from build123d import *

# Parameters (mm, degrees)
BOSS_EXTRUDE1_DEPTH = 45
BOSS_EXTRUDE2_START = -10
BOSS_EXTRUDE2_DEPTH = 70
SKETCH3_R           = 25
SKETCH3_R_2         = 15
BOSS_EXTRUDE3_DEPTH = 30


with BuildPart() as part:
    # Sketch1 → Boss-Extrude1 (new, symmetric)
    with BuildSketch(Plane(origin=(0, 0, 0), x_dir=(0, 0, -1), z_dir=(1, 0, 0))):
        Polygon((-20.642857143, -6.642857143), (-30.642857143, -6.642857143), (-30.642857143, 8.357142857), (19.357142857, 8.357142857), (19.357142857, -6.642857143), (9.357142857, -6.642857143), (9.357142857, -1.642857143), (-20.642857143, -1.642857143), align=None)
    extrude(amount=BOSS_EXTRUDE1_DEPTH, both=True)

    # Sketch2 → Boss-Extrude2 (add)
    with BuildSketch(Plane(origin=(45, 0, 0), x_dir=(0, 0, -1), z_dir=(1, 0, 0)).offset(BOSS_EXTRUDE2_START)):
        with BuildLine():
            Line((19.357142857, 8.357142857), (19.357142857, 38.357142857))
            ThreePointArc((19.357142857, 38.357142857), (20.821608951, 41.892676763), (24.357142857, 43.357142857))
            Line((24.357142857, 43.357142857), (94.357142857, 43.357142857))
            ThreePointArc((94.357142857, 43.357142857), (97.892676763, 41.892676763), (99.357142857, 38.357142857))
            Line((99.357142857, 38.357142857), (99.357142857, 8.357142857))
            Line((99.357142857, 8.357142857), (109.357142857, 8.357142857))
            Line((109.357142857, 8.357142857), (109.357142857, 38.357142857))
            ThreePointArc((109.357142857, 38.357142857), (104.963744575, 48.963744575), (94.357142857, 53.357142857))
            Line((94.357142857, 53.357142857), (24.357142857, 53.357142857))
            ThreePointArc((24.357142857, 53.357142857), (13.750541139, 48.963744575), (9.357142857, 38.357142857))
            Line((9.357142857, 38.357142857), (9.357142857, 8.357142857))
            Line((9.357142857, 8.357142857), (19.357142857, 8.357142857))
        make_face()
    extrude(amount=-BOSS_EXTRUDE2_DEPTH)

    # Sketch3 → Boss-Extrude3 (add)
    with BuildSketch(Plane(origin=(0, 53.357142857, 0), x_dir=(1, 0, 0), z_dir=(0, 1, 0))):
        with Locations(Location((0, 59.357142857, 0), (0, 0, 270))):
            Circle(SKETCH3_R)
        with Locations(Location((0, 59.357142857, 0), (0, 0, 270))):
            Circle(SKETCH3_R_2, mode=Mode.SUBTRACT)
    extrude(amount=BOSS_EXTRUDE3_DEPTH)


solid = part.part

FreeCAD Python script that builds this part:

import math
import FreeCAD as App
import Part
import Sketcher


def add_polygon(sketch, points):
    """Adds a closed chain of lines whose ends are joined by coincident constraints."""
    first, n = sketch.GeometryCount, len(points)
    for a, b in zip(points, points[1:] + points[:1]):
        sketch.addGeometry(Part.LineSegment(App.Vector(*a, 0), App.Vector(*b, 0)), False)
    for i in range(n):
        sketch.addConstraint(Sketcher.Constraint("Coincident", first + i, 2, first + (i + 1) % n, 1))

doc = App.newDocument("Part")
params = doc.addObject("Spreadsheet::Sheet", "Params")
for row, (alias, value) in enumerate([
    ("sketch1_width", "5 mm"),
    ("sketch1_width2", "15 mm"),
    ("sketch1_height", "10 mm"),
    ("sketch1_height2", "30 mm"),
    ("pad1_length", "90 mm"),
    ("sketch2_radius", "5 mm"),
    ("sketch2_radius2", "15 mm"),
    ("sketch2_width", "30 mm"),
    ("sketch2_height", "70 mm"),
    ("pad2_length", "70 mm"),
    ("sketch3_diameter", "50 mm"),
    ("sketch3_diameter2", "30 mm"),
    ("pad3_length", "30 mm"),
], start=1):
    params.set(f"A{row}", alias)
    params.set(f"B{row}", "=" + value)
    params.setAlias(f"B{row}", alias)

body = doc.addObject("PartDesign::Body", "Body")

sketch1 = body.newObject("Sketcher::SketchObject", "Sketch")
sketch1.AttachmentSupport = (doc.getObject("YZ_Plane"), [""])
sketch1.MapMode = "FlatFace"
add_polygon(sketch1, [(-7, 31), (-7, 21), (-2, 21), (-2, -9), (-7, -9), (-7, -19), (8, -19), (8, 31)])
sketch1.addConstraint([
    Sketcher.Constraint("Vertical", 0),
    Sketcher.Constraint("Horizontal", 1),
    Sketcher.Constraint("Vertical", 2),
    Sketcher.Constraint("Horizontal", 3),
    Sketcher.Constraint("Vertical", 4),
    Sketcher.Constraint("Horizontal", 5),
    Sketcher.Constraint("Vertical", 6),
    Sketcher.Constraint("Horizontal", 7),
    Sketcher.Constraint("Vertical", 0, 2, 3, 2),
    Sketcher.Constraint("Equal", 0, 4),
    Sketcher.Constraint("DistanceX", 1, 1, 1, 2, 5.0),
    Sketcher.Constraint("DistanceX", 5, 1, 5, 2, 15.0),
    Sketcher.Constraint("DistanceY", 0, 2, 0, 1, 10.0),
    Sketcher.Constraint("DistanceY", 2, 2, 2, 1, 30.0),
    Sketcher.Constraint("DistanceX", 0, 2, -1, 1, 6.642857),
    Sketcher.Constraint("DistanceY", -1, 1, 0, 2, 20.642857),
])
sketch1.setExpression("Constraints[18]", "Params.sketch1_width")
sketch1.setExpression("Constraints[19]", "Params.sketch1_width2")
sketch1.setExpression("Constraints[20]", "Params.sketch1_height")
sketch1.setExpression("Constraints[21]", "Params.sketch1_height2")
pad1 = body.newObject("PartDesign::Pad", "Pad")
pad1.Profile = sketch1
pad1.setExpression("Length", "Params.pad1_length")
pad1.Midplane = True

sketch2 = body.newObject("Sketcher::SketchObject", "Sketch001")
sketch2.AttachmentSupport = (doc.getObject("YZ_Plane"), [""])
sketch2.MapMode = "FlatFace"
sketch2.AttachmentOffset = App.Placement(App.Vector(0, 0, 35), App.Rotation())
sketch2.addGeometry([
    Part.LineSegment(App.Vector(8, -19, 0), App.Vector(38, -19, 0)),
    Part.ArcOfCircle(Part.Circle(App.Vector(38, -24, 0), App.Vector(0, 0, 1), 5), math.radians(0), math.radians(90)),
    Part.LineSegment(App.Vector(43, -24, 0), App.Vector(43, -94, 0)),
    Part.ArcOfCircle(Part.Circle(App.Vector(38, -94, 0), App.Vector(0, 0, 1), 5), math.radians(-90), math.radians(0)),
    Part.LineSegment(App.Vector(38, -99, 0), App.Vector(8, -99, 0)),
    Part.LineSegment(App.Vector(8, -99, 0), App.Vector(8, -109, 0)),
    Part.LineSegment(App.Vector(8, -109, 0), App.Vector(38, -109, 0)),
    Part.ArcOfCircle(Part.Circle(App.Vector(38, -94, 0), App.Vector(0, 0, 1), 15), math.radians(-90), math.radians(0)),
    Part.LineSegment(App.Vector(53, -94, 0), App.Vector(53, -24, 0)),
    Part.ArcOfCircle(Part.Circle(App.Vector(38, -24, 0), App.Vector(0, 0, 1), 15), math.radians(0), math.radians(90)),
    Part.LineSegment(App.Vector(38, -9, 0), App.Vector(8, -9, 0)),
    Part.LineSegment(App.Vector(8, -9, 0), App.Vector(8, -19, 0)),
], False)
sketch2.addConstraint([
    Sketcher.Constraint("Tangent", 0, 2, 1, 2),
    Sketcher.Constraint("Tangent", 1, 1, 2, 1),
    Sketcher.Constraint("Tangent", 2, 2, 3, 2),
    Sketcher.Constraint("Tangent", 3, 1, 4, 1),
    Sketcher.Constraint("Coincident", 4, 2, 5, 1),
    Sketcher.Constraint("Coincident", 5, 2, 6, 1),
    Sketcher.Constraint("Tangent", 6, 2, 7, 1),
    Sketcher.Constraint("Tangent", 7, 2, 8, 1),
    Sketcher.Constraint("Tangent", 8, 2, 9, 1),
    Sketcher.Constraint("Tangent", 9, 2, 10, 1),
    Sketcher.Constraint("Coincident", 10, 2, 11, 1),
    Sketcher.Constraint("Coincident", 11, 2, 0, 1),
    Sketcher.Constraint("Horizontal", 0),
    Sketcher.Constraint("Vertical", 2),
    Sketcher.Constraint("Horizontal", 4),
    Sketcher.Constraint("Vertical", 5),
    Sketcher.Constraint("Horizontal", 6),
    Sketcher.Constraint("Vertical", 8),
    Sketcher.Constraint("Horizontal", 10),
    Sketcher.Constraint("Vertical", 11),
    Sketcher.Constraint("Coincident", 7, 3, 3, 3),
    Sketcher.Constraint("Coincident", 9, 3, 1, 3),
    Sketcher.Constraint("Equal", 1, 3),
    Sketcher.Constraint("Vertical", 5, 2, 10, 2),
    Sketcher.Constraint("Radius", 1, 5.0),
    Sketcher.Constraint("Radius", 7, 15.0),
    Sketcher.Constraint("DistanceX", 0, 1, 0, 2, 30.0),
    Sketcher.Constraint("DistanceY", 2, 2, 2, 1, 70.0),
    Sketcher.Constraint("DistanceX", -1, 1, 1, 3, 38.357143),
    Sketcher.Constraint("DistanceY", 1, 3, -1, 1, 24.357143),
])
sketch2.setExpression("Constraints[24]", "Params.sketch2_radius")
sketch2.setExpression("Constraints[25]", "Params.sketch2_radius2")
sketch2.setExpression("Constraints[26]", "Params.sketch2_width")
sketch2.setExpression("Constraints[27]", "Params.sketch2_height")
pad2 = body.newObject("PartDesign::Pad", "Pad001")
pad2.Profile = sketch2
pad2.setExpression("Length", "Params.pad2_length")
pad2.Reversed = True

sketch3 = body.newObject("Sketcher::SketchObject", "Sketch002")
sketch3.AttachmentSupport = (doc.getObject("XZ_Plane"), [""])
sketch3.MapMode = "FlatFace"
sketch3.AttachmentOffset = App.Placement(App.Vector(0, 0, -53.357143), App.Rotation())
sketch3.addGeometry([
    Part.Circle(App.Vector(0, -59, 0), App.Vector(0, 0, 1), 25),
    Part.Circle(App.Vector(0, -59, 0), App.Vector(0, 0, 1), 15),
], False)
sketch3.addConstraint([
    Sketcher.Constraint("Coincident", 1, 3, 0, 3),
    Sketcher.Constraint("PointOnObject", 0, 3, -2),
    Sketcher.Constraint("Diameter", 0, 50.0),
    Sketcher.Constraint("Diameter", 1, 30.0),
    Sketcher.Constraint("DistanceY", 0, 3, -1, 1, 59.357143),
])
sketch3.setExpression("Constraints[2]", "Params.sketch3_diameter")
sketch3.setExpression("Constraints[3]", "Params.sketch3_diameter2")
pad3 = body.newObject("PartDesign::Pad", "Pad002")
pad3.Profile = sketch3
pad3.setExpression("Length", "Params.pad3_length")
pad3.Reversed = True

doc.recompute()
